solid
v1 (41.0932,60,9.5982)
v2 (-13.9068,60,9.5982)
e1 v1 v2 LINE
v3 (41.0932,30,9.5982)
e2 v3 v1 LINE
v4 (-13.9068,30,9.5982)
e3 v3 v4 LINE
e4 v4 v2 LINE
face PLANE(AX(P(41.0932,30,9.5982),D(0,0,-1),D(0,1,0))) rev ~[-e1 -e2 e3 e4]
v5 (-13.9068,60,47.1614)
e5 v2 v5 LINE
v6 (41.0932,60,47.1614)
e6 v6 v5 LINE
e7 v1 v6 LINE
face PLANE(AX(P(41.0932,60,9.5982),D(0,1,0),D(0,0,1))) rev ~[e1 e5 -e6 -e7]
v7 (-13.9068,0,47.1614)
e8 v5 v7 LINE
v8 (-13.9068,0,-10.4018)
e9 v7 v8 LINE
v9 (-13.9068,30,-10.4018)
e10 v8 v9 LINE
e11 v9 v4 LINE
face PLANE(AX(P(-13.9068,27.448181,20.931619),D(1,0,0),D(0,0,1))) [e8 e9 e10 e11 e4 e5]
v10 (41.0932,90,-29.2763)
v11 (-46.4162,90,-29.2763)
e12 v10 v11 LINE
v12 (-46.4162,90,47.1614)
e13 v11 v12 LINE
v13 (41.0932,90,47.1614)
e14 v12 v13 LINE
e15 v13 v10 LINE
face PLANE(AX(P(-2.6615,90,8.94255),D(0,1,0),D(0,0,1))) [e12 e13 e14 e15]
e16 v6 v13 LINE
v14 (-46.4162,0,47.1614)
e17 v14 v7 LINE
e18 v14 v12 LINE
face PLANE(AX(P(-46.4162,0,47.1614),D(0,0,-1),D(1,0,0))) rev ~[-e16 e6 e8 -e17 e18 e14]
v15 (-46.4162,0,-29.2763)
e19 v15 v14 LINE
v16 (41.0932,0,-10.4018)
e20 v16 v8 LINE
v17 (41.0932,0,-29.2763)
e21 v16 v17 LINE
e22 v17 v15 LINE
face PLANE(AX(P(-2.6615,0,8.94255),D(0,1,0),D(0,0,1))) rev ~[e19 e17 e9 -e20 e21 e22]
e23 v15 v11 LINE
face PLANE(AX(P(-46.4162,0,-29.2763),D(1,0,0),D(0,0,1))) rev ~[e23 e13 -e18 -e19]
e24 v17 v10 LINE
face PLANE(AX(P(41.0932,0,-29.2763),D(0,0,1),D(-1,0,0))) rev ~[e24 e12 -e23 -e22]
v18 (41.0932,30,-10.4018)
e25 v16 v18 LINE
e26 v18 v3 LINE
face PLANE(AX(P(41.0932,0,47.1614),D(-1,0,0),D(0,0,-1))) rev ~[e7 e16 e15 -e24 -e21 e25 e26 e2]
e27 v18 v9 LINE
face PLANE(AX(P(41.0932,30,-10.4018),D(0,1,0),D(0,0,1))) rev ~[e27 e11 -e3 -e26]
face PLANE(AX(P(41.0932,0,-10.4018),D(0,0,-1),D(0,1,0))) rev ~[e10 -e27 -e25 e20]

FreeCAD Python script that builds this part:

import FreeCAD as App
import Part
import Sketcher
from FreeCAD import Vector

doc = App.newDocument("Part")
body = doc.addObject("PartDesign::Body", "Body")

sketch1 = body.newObject("Sketcher::SketchObject", "Sketch")
sketch1.AttachmentSupport = (doc.getObject("XZ_Plane"), [""])
sketch1.MapMode = "FlatFace"
sketch1.addGeometry(Part.LineSegment(Vector(41, 47, 0), Vector(-46, 47, 0)), False)
sketch1.addGeometry(Part.LineSegment(Vector(-46, 47, 0), Vector(-46, -29, 0)), False)
sketch1.addGeometry(Part.LineSegment(Vector(-46, -29, 0), Vector(41, -29, 0)), False)
sketch1.addGeometry(Part.LineSegment(Vector(41, -29, 0), Vector(41, 47, 0)), False)
sketch1.addConstraint(Sketcher.Constraint("Coincident", 0, 2, 1, 1))
sketch1.addConstraint(Sketcher.Constraint("Coincident", 1, 2, 2, 1))
sketch1.addConstraint(Sketcher.Constraint("Coincident", 2, 2, 3, 1))
sketch1.addConstraint(Sketcher.Constraint("Coincident", 3, 2, 0, 1))
sketch1.addConstraint(Sketcher.Constraint("Horizontal", 0))
sketch1.addConstraint(Sketcher.Constraint("Vertical", 1))
sketch1.addConstraint(Sketcher.Constraint("Horizontal", 2))
sketch1.addConstraint(Sketcher.Constraint("Vertical", 3))
sketch1.addConstraint(Sketcher.Constraint("DistanceX", 0, 2, 0, 1, 87.5094))
sketch1.addConstraint(Sketcher.Constraint("DistanceY", 1, 2, 1, 1, 76.4377))
sketch1.addConstraint(Sketcher.Constraint("DistanceX", 0, 2, -1, 1, 46.4162))
sketch1.addConstraint(Sketcher.Constraint("DistanceY", -1, 1, 0, 2, 47.1614))
pad1 = body.newObject("PartDesign::Pad", "Pad")
pad1.Profile = sketch1
pad1.Length = 90
pad1.Reversed = True

sketch2 = body.newObject("Sketcher::SketchObject", "Sketch001")
sketch2.AttachmentSupport = (doc.getObject("YZ_Plane"), [""])
sketch2.MapMode = "FlatFace"
sketch2.AttachmentOffset = App.Placement(Vector(0, 0, 41.0932), App.Rotation())
sketch2.addGeometry(Part.LineSegment(Vector(0, 47, 0), Vector(0, -10, 0)), False)
sketch2.addGeometry(Part.LineSegment(Vector(0, -10, 0), Vector(30, -10, 0)), False)
sketch2.addGeometry(Part.LineSegment(Vector(30, -10, 0), Vector(30, 10, 0)), False)
sketch2.addGeometry(Part.LineSegment(Vector(30, 10, 0), Vector(60, 10, 0)), False)
sketch2.addGeometry(Part.LineSegment(Vector(60, 10, 0), Vector(60, 47, 0)), False)
sketch2.addGeometry(Part.LineSegment(Vector(60, 47, 0), Vector(0, 47, 0)), False)
sketch2.addConstraint(Sketcher.Constraint("Coincident", 0, 2, 1, 1))
sketch2.addConstraint(Sketcher.Constraint("Coincident", 1, 2, 2, 1))
sketch2.addConstraint(Sketcher.Constraint("Coincident", 2, 2, 3, 1))
sketch2.addConstraint(Sketcher.Constraint("Coincident", 3, 2, 4, 1))
sketch2.addConstraint(Sketcher.Constraint("Coincident", 4, 2, 5, 1))
sketch2.addConstraint(Sketcher.Constraint("Coincident", 5, 2, 0, 1))
sketch2.addConstraint(Sketcher.Constraint("Vertical", 0))
sketch2.addConstraint(Sketcher.Constraint("Horizontal", 1))
sketch2.addConstraint(Sketcher.Constraint("Vertical", 2))
sketch2.addConstraint(Sketcher.Constraint("Horizontal", 3))
sketch2.addConstraint(Sketcher.Constraint("Vertical", 4))
sketch2.addConstraint(Sketcher.Constraint("Horizontal", 5))
sketch2.addConstraint(Sketcher.Constraint("PointOnObject", 0, 2, -2))
sketch2.addConstraint(Sketcher.Constraint("Equal", 1, 3))
sketch2.addConstraint(Sketcher.Constraint("DistanceX", 1, 1, 1, 2, 30.0))
sketch2.addConstraint(Sketcher.Constraint("DistanceY", 2, 1, 2, 2, 20.0))
sketch2.addConstraint(Sketcher.Constraint("DistanceY", 0, 2, 0, 1, 57.5632))
sketch2.addConstraint(Sketcher.Constraint("DistanceY", 0, 2, -1, 1, 10.4018))
pocket1 = body.newObject("PartDesign::Pocket", "Pocket")
pocket1.Profile = sketch2
pocket1.Length = 55

doc.recompute()
